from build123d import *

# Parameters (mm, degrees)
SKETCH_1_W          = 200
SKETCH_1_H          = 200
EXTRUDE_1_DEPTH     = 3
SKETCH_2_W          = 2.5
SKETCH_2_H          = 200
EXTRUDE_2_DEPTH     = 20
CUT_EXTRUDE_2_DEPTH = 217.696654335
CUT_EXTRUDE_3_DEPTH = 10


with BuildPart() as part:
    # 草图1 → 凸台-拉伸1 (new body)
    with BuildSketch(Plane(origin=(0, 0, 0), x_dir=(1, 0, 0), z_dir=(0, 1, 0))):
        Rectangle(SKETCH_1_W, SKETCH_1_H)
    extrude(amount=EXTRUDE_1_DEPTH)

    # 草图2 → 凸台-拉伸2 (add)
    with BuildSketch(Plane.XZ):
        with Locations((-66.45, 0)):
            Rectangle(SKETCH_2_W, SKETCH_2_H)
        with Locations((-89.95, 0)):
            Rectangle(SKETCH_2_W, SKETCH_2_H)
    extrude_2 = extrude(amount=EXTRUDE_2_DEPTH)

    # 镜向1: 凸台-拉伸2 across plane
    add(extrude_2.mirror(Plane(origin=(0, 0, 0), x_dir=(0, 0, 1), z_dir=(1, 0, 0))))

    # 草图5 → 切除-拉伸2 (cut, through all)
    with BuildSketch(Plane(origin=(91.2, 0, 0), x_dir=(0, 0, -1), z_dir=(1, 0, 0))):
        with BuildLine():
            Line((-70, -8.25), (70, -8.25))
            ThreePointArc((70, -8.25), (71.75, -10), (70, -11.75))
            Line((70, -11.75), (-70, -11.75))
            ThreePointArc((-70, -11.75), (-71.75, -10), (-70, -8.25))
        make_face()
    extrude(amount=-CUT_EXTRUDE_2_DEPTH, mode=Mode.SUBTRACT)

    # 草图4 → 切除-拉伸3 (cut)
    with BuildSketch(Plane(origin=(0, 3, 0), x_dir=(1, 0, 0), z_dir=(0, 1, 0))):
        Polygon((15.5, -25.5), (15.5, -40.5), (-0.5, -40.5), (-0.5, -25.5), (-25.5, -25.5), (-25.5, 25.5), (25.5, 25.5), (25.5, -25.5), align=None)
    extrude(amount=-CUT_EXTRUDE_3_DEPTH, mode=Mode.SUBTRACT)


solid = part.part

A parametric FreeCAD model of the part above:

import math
import FreeCAD as App
import Part
import Sketcher

doc = App.newDocument("Part")
body = doc.addObject("PartDesign::Body", "Body")

# Sketch on XZ plane
sketch1 = body.newObject("Sketcher::SketchObject", "Sketch")
sketch1.AttachmentSupport = (doc.getObject("XZ_Plane"), [""])
sketch1.MapMode = "FlatFace"
sketch1.addGeometry(Part.LineSegment(App.Vector(-100, -100, 0), App.Vector(-100, 100, 0)), False)
sketch1.addGeometry(Part.LineSegment(App.Vector(-100, 100, 0), App.Vector(100, 100, 0)), False)
sketch1.addGeometry(Part.LineSegment(App.Vector(100, 100, 0), App.Vector(100, -100, 0)), False)
sketch1.addGeometry(Part.LineSegment(App.Vector(100, -100, 0), App.Vector(-100, -100, 0)), False)
sketch1.addConstraint(Sketcher.Constraint("Coincident", 0, 2, 1, 1))
sketch1.addConstraint(Sketcher.Constraint("Coincident", 1, 2, 2, 1))
sketch1.addConstraint(Sketcher.Constraint("Coincident", 2, 2, 3, 1))
sketch1.addConstraint(Sketcher.Constraint("Coincident", 3, 2, 0, 1))
sketch1.addConstraint(Sketcher.Constraint("Vertical", 0))
sketch1.addConstraint(Sketcher.Constraint("Horizontal", 1))
sketch1.addConstraint(Sketcher.Constraint("Vertical", 2))
sketch1.addConstraint(Sketcher.Constraint("Horizontal", 3))
sketch1.addConstraint(Sketcher.Constraint("Symmetric", 0, 2, 2, 2, -1, 1))
sketch1.addConstraint(Sketcher.Constraint("Equal", 3, 0))
sketch1.addConstraint(Sketcher.Constraint("DistanceX", 1, 1, 1, 2, 200.0))
pad1 = body.newObject("PartDesign::Pad", "Pad")
pad1.Profile = sketch1
pad1.Length = 3
pad1.Reversed = True

# Sketch on XZ plane
sketch2 = body.newObject("Sketcher::SketchObject", "Sketch001")
sketch2.AttachmentSupport = (doc.getObject("XZ_Plane"), [""])
sketch2.MapMode = "FlatFace"
sketch2.addGeometry(Part.LineSegment(App.Vector(-67.7, 100, 0), App.Vector(-67.7, -100, 0)), False)
sketch2.addGeometry(Part.LineSegment(App.Vector(-67.7, -100, 0), App.Vector(-65.2, -100, 0)), False)
sketch2.addGeometry(Part.LineSegment(App.Vector(-65.2, -100, 0), App.Vector(-65.2, 100, 0)), False)
sketch2.addGeometry(Part.LineSegment(App.Vector(-65.2, 100, 0), App.Vector(-67.7, 100, 0)), False)
sketch2.addGeometry(Part.LineSegment(App.Vector(-91.2, 100, 0), App.Vector(-91.2, -100, 0)), False)
sketch2.addGeometry(Part.LineSegment(App.Vector(-91.2, -100, 0), App.Vector(-88.7, -100, 0)), False)
sketch2.addGeometry(Part.LineSegment(App.Vector(-88.7, -100, 0), App.Vector(-88.7, 100, 0)), False)
sketch2.addGeometry(Part.LineSegment(App.Vector(-88.7, 100, 0), App.Vector(-91.2, 100, 0)), False)
sketch2.addConstraint(Sketcher.Constraint("Coincident", 0, 2, 1, 1))
sketch2.addConstraint(Sketcher.Constraint("Coincident", 1, 2, 2, 1))
sketch2.addConstraint(Sketcher.Constraint("Coincident", 2, 2, 3, 1))
sketch2.addConstraint(Sketcher.Constraint("Coincident", 3, 2, 0, 1))
sketch2.addConstraint(Sketcher.Constraint("Coincident", 4, 2, 5, 1))
sketch2.addConstraint(Sketcher.Constraint("Coincident", 5, 2, 6, 1))
sketch2.addConstraint(Sketcher.Constraint("Coincident", 6, 2, 7, 1))
sketch2.addConstraint(Sketcher.Constraint("Coincident", 7, 2, 4, 1))
sketch2.addConstraint(Sketcher.Constraint("Vertical", 0))
sketch2.addConstraint(Sketcher.Constraint("Horizontal", 1))
sketch2.addConstraint(Sketcher.Constraint("Vertical", 2))
sketch2.addConstraint(Sketcher.Constraint("Horizontal", 3))
sketch2.addConstraint(Sketcher.Constraint("Vertical", 4))
sketch2.addConstraint(Sketcher.Constraint("Horizontal", 5))
sketch2.addConstraint(Sketcher.Constraint("Vertical", 6))
sketch2.addConstraint(Sketcher.Constraint("Horizontal", 7))
sketch2.addConstraint(Sketcher.Constraint("Horizontal", 1, 2, 4, 2))
sketch2.addConstraint(Sketcher.Constraint("Horizontal", 3, 2, 6, 2))
sketch2.addConstraint(Sketcher.Constraint("Equal", 3, 5))
sketch2.addConstraint(Sketcher.Constraint("DistanceY", 0, 2, 0, 1, 200.0))
sketch2.addConstraint(Sketcher.Constraint("DistanceX", 1, 1, 1, 2, 2.5))
sketch2.addConstraint(Sketcher.Constraint("DistanceY", 0, 2, -1, 1, 100.0))
sketch2.addConstraint(Sketcher.Constraint("DistanceX", 4, 2, 1, 2, 26.0))
sketch2.addConstraint(Sketcher.Constraint("DistanceX", 0, 2, -1, 1, 67.7))
pad2 = body.newObject("PartDesign::Pad", "Pad001")
pad2.Profile = sketch2
pad2.Length = 20
doc.recompute()

mirrored = body.newObject("PartDesign::Mirrored", "Mirrored")
mirrored.Originals = [pad2]
mirrored.MirrorPlane = (doc.getObject("YZ_Plane"), [""])
body.Tip = mirrored

# Sketch on YZ plane
sketch3 = body.newObject("Sketcher::SketchObject", "Sketch002")
sketch3.AttachmentSupport = (doc.getObject("YZ_Plane"), [""])
sketch3.MapMode = "FlatFace"
sketch3.AttachmentOffset = App.Placement(App.Vector(0, 0, 91.2), App.Rotation())
sketch3.addGeometry(Part.LineSegment(App.Vector(-8.2, -70, 0), App.Vector(-8.2, 70, 0)), False)
sketch3.addGeometry(Part.ArcOfCircle(Part.Circle(App.Vector(-10, 70, 0), App.Vector(0, 0, 1), 1.8), math.radians(0), math.radians(180)), False)
sketch3.addGeometry(Part.LineSegment(App.Vector(-11.8, 70, 0), App.Vector(-11.8, -70, 0)), False)
sketch3.addGeometry(Part.ArcOfCircle(Part.Circle(App.Vector(-10, -70, 0), App.Vector(0, 0, 1), 1.8), math.radians(180), math.radians(360)), False)
sketch3.addConstraint(Sketcher.Constraint("Tangent", 0, 2, 1, 1))
sketch3.addConstraint(Sketcher.Constraint("Tangent", 1, 2, 2, 1))
sketch3.addConstraint(Sketcher.Constraint("Tangent", 2, 2, 3, 1))
sketch3.addConstraint(Sketcher.Constraint("Tangent", 3, 2, 0, 1))
sketch3.addConstraint(Sketcher.Constraint("Vertical", 0))
sketch3.addConstraint(Sketcher.Constraint("Vertical", 2))
sketch3.addConstraint(Sketcher.Constraint("DistanceY", 0, 1, 0, 2, 140.0))
sketch3.addConstraint(Sketcher.Constraint("Radius", 1, 1.75))
sketch3.addConstraint(Sketcher.Constraint("DistanceX", 1, 3, -1, 1, 10.0))
sketch3.addConstraint(Sketcher.Constraint("DistanceY", -1, 1, 1, 3, 70.0))
pocket1 = body.newObject("PartDesign::Pocket", "Pocket")
pocket1.Profile = sketch3
pocket1.Type = "ThroughAll"

# Sketch on XZ plane
sketch4 = body.newObject("Sketcher::SketchObject", "Sketch003")
sketch4.AttachmentSupport = (doc.getObject("XZ_Plane"), [""])
sketch4.MapMode = "FlatFace"
sketch4.AttachmentOffset = App.Placement(App.Vector(0, 0, -3), App.Rotation())
sketch4.addGeometry(Part.LineSegment(App.Vector(16, 40, 0), App.Vector(16, 26, 0)), False)
sketch4.addGeometry(Part.LineSegment(App.Vector(16, 26, 0), App.Vector(26, 26, 0)), False)
sketch4.addGeometry(Part.LineSegment(App.Vector(26, 26, 0), App.Vector(26, -26, 0)), False)
sketch4.addGeometry(Part.LineSegment(App.Vector(26, -26, 0), App.Vector(-26, -26, 0)), False)
sketch4.addGeometry(Part.LineSegment(App.Vector(-26, -26, 0), App.Vector(-26, 26, 0)), False)
sketch4.addGeometry(Part.LineSegment(App.Vector(-26, 26, 0), App.Vector(0, 26, 0)), False)
sketch4.addGeometry(Part.LineSegment(App.Vector(0, 26, 0), App.Vector(0, 40, 0)), False)
sketch4.addGeometry(Part.LineSegment(App.Vector(0, 40, 0), App.Vector(16, 40, 0)), False)
sketch4.addConstraint(Sketcher.Constraint("Coincident", 0, 2, 1, 1))
sketch4.addConstraint(Sketcher.Constraint("Coincident", 1, 2, 2, 1))
sketch4.addConstraint(Sketcher.Constraint("Coincident", 2, 2, 3, 1))
sketch4.addConstraint(Sketcher.Constraint("Coincident", 3, 2, 4, 1))
sketch4.addConstraint(Sketcher.Constraint("Coincident", 4, 2, 5, 1))
sketch4.addConstraint(Sketcher.Constraint("Coincident", 5, 2, 6, 1))
sketch4.addConstraint(Sketcher.Constraint("Coincident", 6, 2, 7, 1))
sketch4.addConstraint(Sketcher.Constraint("Coincident", 7, 2, 0, 1))
sketch4.addConstraint(Sketcher.Constraint("Vertical", 0))
sketch4.addConstraint(Sketcher.Constraint("Horizontal", 1))
sketch4.addConstraint(Sketcher.Constraint("Vertical", 2))
sketch4.addConstraint(Sketcher.Constraint("Horizontal", 3))
sketch4.addConstraint(Sketcher.Constraint("Vertical", 4))
sketch4.addConstraint(Sketcher.Constraint("Horizontal", 5))
sketch4.addConstraint(Sketcher.Constraint("Vertical", 6))
sketch4.addConstraint(Sketcher.Constraint("Horizontal", 7))
sketch4.addConstraint(Sketcher.Constraint("Symmetric", 1, 2, 3, 2, -1, 1))
sketch4.addConstraint(Sketcher.Constraint("Horizontal", 1, 2, 4, 2))
sketch4.addConstraint(Sketcher.Constraint("Equal", 3, 2))
sketch4.addConstraint(Sketcher.Constraint("DistanceX", 1, 1, 1, 2, 10.0))
sketch4.addConstraint(Sketcher.Constraint("DistanceX", 3, 2, 3, 1, 51.0))
sketch4.addConstraint(Sketcher.Constraint("DistanceX", 5, 1, 5, 2, 25.0))
sketch4.addConstraint(Sketcher.Constraint("DistanceY", 0, 2, 0, 1, 15.0))
pocket2 = body.newObject("PartDesign::Pocket", "Pocket001")
pocket2.Profile = sketch4
pocket2.Length = 10
pocket2.Reversed = True

doc.recompute()
